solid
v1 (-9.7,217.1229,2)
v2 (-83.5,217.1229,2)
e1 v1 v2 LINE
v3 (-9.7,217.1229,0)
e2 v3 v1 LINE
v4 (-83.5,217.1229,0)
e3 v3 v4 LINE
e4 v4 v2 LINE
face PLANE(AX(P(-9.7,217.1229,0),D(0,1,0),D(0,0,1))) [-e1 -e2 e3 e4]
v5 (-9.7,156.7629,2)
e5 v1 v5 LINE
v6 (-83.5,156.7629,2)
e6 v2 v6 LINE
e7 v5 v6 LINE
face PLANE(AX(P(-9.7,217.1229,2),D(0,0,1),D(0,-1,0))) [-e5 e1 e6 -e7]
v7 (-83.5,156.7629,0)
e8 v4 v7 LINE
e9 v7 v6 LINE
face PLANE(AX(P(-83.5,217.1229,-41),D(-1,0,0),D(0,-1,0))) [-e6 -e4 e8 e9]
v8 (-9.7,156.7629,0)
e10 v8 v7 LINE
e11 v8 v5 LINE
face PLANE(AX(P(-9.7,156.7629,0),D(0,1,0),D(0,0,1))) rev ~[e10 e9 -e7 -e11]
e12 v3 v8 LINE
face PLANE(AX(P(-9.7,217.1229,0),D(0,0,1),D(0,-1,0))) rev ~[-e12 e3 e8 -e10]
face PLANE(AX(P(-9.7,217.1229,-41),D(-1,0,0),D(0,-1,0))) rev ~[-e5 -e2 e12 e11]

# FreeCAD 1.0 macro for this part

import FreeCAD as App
import Part
import Sketcher

V = App.Vector
Q = App.Units.Quantity

doc = App.newDocument("Part")
body = doc.addObject("PartDesign::Body", "Body")

# Sketch on YZ plane
sketch1 = doc.addObject("Sketcher::SketchObject", "Sketch")
body.addObject(sketch1)
sketch1.AttachmentSupport = (doc.YZ_Plane, [""])
sketch1.MapMode = "FlatFace"
sketch1.AttachmentOffset = App.Placement(V(0, 0, -9.7), App.Rotation())
sketch1.addGeometry(Part.LineSegment(V(217.1, 2, 0), V(217.1, 0, 0)), False)
sketch1.addGeometry(Part.LineSegment(V(217.1, 0, 0), V(156.8, 0, 0)), False)
sketch1.addGeometry(Part.LineSegment(V(156.8, 0, 0), V(156.8, 2, 0)), False)
sketch1.addGeometry(Part.LineSegment(V(156.8, 2, 0), V(217.1, 2, 0)), False)
sketch1.addConstraint(Sketcher.Constraint("Coincident", 0, 2, 1, 1))
sketch1.addConstraint(Sketcher.Constraint("Coincident", 1, 2, 2, 1))
sketch1.addConstraint(Sketcher.Constraint("Coincident", 2, 2, 3, 1))
sketch1.addConstraint(Sketcher.Constraint("Coincident", 3, 2, 0, 1))
sketch1.addConstraint(Sketcher.Constraint("Vertical", 0))
sketch1.addConstraint(Sketcher.Constraint("Horizontal", 1))
sketch1.addConstraint(Sketcher.Constraint("Vertical", 2))
sketch1.addConstraint(Sketcher.Constraint("Horizontal", 3))
sketch1.addConstraint(Sketcher.Constraint("PointOnObject", 0, 2, -1))
sketch1.addConstraint(Sketcher.Constraint("DistanceY", 0, 2, 0, 1, Q("2 mm")))
sketch1.addConstraint(Sketcher.Constraint("DistanceX", 1, 2, 1, 1, Q("60.36 mm")))
sketch1.addConstraint(Sketcher.Constraint("DistanceX", -1, 1, 0, 2, Q("217.123 mm")))
pad1 = doc.addObject("PartDesign::Pad", "Pad")
body.addObject(pad1)
pad1.Profile = sketch1
pad1.Length = 73.8
pad1.Reversed = True

doc.recompute()
